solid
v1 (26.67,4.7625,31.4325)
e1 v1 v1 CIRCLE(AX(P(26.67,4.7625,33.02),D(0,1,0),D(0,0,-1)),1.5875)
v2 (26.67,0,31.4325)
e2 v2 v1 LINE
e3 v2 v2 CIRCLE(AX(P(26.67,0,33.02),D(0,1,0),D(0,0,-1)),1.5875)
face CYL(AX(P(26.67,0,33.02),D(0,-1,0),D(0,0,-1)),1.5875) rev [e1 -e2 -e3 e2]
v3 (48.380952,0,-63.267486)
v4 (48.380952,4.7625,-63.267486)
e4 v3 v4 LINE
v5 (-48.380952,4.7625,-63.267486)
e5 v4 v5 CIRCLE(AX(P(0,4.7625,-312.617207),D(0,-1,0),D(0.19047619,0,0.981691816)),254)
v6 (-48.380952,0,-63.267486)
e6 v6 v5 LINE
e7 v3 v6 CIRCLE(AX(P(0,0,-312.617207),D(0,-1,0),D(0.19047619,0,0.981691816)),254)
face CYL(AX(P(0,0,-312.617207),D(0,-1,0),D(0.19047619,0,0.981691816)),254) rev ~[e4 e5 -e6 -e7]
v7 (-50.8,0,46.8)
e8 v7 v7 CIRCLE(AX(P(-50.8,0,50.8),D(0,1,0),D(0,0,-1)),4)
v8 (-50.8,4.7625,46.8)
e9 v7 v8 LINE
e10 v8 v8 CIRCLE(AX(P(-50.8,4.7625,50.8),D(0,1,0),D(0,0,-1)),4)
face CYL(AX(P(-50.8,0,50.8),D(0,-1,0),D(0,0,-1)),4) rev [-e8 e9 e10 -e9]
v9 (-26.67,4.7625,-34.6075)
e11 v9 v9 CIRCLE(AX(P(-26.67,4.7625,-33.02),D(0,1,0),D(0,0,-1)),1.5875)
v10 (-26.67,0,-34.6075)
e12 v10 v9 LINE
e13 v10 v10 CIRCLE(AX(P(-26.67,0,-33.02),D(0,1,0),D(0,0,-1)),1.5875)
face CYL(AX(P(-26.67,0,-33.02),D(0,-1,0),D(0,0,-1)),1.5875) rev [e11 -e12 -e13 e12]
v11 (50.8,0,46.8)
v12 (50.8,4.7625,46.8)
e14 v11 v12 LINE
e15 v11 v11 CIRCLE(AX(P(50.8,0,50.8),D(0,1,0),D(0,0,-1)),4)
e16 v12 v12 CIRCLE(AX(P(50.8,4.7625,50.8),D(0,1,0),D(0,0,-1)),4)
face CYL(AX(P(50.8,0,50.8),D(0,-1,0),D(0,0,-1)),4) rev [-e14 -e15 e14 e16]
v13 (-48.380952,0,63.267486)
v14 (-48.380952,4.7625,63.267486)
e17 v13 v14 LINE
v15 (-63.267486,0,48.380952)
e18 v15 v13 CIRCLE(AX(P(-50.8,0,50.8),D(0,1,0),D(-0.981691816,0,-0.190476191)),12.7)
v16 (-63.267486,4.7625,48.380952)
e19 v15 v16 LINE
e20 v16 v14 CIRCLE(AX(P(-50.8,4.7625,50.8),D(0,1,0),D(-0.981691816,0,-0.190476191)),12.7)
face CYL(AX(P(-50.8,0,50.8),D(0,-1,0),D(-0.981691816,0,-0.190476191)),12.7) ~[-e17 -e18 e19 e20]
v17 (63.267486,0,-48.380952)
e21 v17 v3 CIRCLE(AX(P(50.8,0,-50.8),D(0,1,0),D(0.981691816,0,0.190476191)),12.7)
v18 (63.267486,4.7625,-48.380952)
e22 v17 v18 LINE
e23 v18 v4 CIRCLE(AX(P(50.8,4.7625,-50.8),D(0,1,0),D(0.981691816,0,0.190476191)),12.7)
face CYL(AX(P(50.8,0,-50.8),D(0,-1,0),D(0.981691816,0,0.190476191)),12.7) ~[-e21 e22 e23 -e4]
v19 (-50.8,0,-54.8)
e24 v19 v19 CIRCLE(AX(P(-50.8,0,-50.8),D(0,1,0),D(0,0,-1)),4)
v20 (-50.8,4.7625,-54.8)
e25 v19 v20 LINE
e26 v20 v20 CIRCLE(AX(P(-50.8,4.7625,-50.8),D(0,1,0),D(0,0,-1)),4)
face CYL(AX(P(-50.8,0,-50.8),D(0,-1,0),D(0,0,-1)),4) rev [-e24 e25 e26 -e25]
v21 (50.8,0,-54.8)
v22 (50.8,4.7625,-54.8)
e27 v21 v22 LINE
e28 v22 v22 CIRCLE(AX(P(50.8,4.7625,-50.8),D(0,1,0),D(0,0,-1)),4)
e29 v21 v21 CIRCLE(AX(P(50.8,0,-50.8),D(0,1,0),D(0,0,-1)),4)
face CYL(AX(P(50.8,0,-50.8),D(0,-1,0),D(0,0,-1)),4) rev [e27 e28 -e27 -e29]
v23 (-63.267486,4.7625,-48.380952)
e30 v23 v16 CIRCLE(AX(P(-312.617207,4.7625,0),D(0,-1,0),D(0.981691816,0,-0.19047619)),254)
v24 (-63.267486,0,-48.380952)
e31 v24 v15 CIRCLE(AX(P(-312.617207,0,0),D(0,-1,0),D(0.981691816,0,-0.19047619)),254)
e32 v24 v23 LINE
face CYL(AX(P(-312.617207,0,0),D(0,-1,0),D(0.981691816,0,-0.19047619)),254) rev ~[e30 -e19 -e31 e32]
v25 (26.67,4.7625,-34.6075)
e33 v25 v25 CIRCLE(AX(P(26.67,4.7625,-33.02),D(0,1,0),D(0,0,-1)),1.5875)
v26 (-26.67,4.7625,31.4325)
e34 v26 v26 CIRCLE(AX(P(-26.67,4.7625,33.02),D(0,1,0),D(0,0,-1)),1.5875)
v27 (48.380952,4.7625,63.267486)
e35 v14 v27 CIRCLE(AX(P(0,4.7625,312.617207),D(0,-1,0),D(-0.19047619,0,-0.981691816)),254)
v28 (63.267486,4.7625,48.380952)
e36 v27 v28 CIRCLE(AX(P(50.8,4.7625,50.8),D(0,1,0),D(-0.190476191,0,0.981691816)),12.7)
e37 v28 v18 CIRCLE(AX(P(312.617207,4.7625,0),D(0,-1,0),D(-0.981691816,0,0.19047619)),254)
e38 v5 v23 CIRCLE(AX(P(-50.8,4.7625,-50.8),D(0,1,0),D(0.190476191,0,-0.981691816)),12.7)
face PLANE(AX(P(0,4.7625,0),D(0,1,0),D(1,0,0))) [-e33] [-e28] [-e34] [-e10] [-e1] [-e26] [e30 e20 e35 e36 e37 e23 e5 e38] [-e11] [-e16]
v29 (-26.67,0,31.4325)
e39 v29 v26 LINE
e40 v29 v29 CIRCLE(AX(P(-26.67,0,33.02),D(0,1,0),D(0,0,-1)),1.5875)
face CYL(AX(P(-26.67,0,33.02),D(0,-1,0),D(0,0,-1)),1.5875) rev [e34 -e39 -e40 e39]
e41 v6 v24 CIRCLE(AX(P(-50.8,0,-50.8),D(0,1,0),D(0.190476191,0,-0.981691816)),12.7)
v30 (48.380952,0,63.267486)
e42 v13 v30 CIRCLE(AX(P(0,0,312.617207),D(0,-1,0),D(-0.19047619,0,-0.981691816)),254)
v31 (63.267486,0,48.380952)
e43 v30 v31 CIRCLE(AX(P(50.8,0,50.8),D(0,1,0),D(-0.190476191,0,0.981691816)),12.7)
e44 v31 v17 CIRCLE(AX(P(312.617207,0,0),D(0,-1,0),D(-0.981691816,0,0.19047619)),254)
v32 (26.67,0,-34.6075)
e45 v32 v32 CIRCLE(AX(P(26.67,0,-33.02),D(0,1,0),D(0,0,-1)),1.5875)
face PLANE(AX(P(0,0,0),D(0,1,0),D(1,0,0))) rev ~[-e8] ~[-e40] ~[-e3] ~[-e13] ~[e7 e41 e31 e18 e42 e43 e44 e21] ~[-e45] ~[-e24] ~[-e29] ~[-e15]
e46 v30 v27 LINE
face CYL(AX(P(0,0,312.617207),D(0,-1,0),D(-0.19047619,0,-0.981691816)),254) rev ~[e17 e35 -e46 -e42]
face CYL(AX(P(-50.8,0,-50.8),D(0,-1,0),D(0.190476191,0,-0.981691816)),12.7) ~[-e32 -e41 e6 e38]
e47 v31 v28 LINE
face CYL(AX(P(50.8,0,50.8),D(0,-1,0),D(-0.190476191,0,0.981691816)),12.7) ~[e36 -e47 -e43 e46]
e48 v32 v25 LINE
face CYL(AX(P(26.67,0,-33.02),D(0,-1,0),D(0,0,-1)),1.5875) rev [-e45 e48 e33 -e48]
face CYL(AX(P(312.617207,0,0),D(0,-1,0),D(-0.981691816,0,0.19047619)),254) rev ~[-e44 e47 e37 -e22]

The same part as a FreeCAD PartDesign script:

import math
import FreeCAD as App
import Part
import Sketcher
Q = App.Units.Quantity

doc = App.newDocument("Part")
body = doc.addObject("PartDesign::Body", "Body")

sketch1 = body.newObject("Sketcher::SketchObject", "Sketch")
sketch1.AttachmentSupport = (doc.getObject("XZ_Plane"), [""])
sketch1.MapMode = "FlatFace"
sketch1.addGeometry(Part.ArcOfCircle(Part.Circle(App.Vector(-50.8, -50.8, 0), App.Vector(0, 0, 1), 12.7), math.radians(169), math.radians(281)), False)
sketch1.addGeometry(Part.ArcOfCircle(Part.Circle(App.Vector(-312.6, 0, 0), App.Vector(0, 0, 1), 254), math.radians(-11), math.radians(11)), False)
sketch1.addGeometry(Part.ArcOfCircle(Part.Circle(App.Vector(-50.8, 50.8, 0), App.Vector(0, 0, 1), 12.7), math.radians(79), math.radians(191)), False)
sketch1.addGeometry(Part.ArcOfCircle(Part.Circle(App.Vector(0, 312.6, 0), App.Vector(0, 0, 1), 254), math.radians(-101), math.radians(-79)), False)
sketch1.addGeometry(Part.ArcOfCircle(Part.Circle(App.Vector(50.8, 50.8, 0), App.Vector(0, 0, 1), 12.7), math.radians(-11), math.radians(101)), False)
sketch1.addGeometry(Part.ArcOfCircle(Part.Circle(App.Vector(312.6, 0, 0), App.Vector(0, 0, 1), 254), math.radians(169), math.radians(191)), False)
sketch1.addGeometry(Part.ArcOfCircle(Part.Circle(App.Vector(50.8, -50.8, 0), App.Vector(0, 0, 1), 12.7), math.radians(-101), math.radians(11)), False)
sketch1.addGeometry(Part.ArcOfCircle(Part.Circle(App.Vector(0, -312.6, 0), App.Vector(0, 0, 1), 254), math.radians(79), math.radians(101)), False)
sketch1.addGeometry(Part.Circle(App.Vector(-50.8, 50.8, 0), App.Vector(0, 0, 1), 4), False)
sketch1.addGeometry(Part.Circle(App.Vector(-26.7, 33, 0), App.Vector(0, 0, 1), 1.6), False)
sketch1.addGeometry(Part.Circle(App.Vector(26.7, 33, 0), App.Vector(0, 0, 1), 1.6), False)
sketch1.addGeometry(Part.Circle(App.Vector(50.8, 50.8, 0), App.Vector(0, 0, 1), 4), False)
sketch1.addGeometry(Part.Circle(App.Vector(-50.8, -50.8, 0), App.Vector(0, 0, 1), 4), False)
sketch1.addGeometry(Part.Circle(App.Vector(-26.7, -33, 0), App.Vector(0, 0, 1), 1.6), False)
sketch1.addGeometry(Part.Circle(App.Vector(26.7, -33, 0), App.Vector(0, 0, 1), 1.6), False)
sketch1.addGeometry(Part.Circle(App.Vector(50.8, -50.8, 0), App.Vector(0, 0, 1), 4), False)
sketch1.addConstraint(Sketcher.Constraint("Tangent", 0, 1, 1, 1))
sketch1.addConstraint(Sketcher.Constraint("Tangent", 1, 2, 2, 2))
sketch1.addConstraint(Sketcher.Constraint("Tangent", 2, 1, 3, 1))
sketch1.addConstraint(Sketcher.Constraint("Tangent", 3, 2, 4, 2))
sketch1.addConstraint(Sketcher.Constraint("Tangent", 4, 1, 5, 1))
sketch1.addConstraint(Sketcher.Constraint("Tangent", 5, 2, 6, 2))
sketch1.addConstraint(Sketcher.Constraint("Tangent", 6, 1, 7, 1))
sketch1.addConstraint(Sketcher.Constraint("Tangent", 7, 2, 0, 2))
sketch1.addConstraint(Sketcher.Constraint("Coincident", 8, 3, 2, 3))
sketch1.addConstraint(Sketcher.Constraint("Coincident", 11, 3, 4, 3))
sketch1.addConstraint(Sketcher.Constraint("Coincident", 12, 3, 0, 3))
sketch1.addConstraint(Sketcher.Constraint("Coincident", 15, 3, 6, 3))
sketch1.addConstraint(Sketcher.Constraint("Equal", 0, 2))
sketch1.addConstraint(Sketcher.Constraint("Equal", 1, 3))
sketch1.addConstraint(Sketcher.Constraint("Equal", 2, 4))
sketch1.addConstraint(Sketcher.Constraint("Equal", 3, 5))
sketch1.addConstraint(Sketcher.Constraint("Equal", 4, 6))
sketch1.addConstraint(Sketcher.Constraint("Equal", 5, 7))
sketch1.addConstraint(Sketcher.Constraint("Equal", 9, 10))
sketch1.addConstraint(Sketcher.Constraint("Equal", 8, 11))
sketch1.addConstraint(Sketcher.Constraint("Equal", 11, 12))
sketch1.addConstraint(Sketcher.Constraint("Equal", 10, 13))
sketch1.addConstraint(Sketcher.Constraint("Equal", 13, 14))
sketch1.addConstraint(Sketcher.Constraint("Equal", 12, 15))
sketch1.addConstraint(Sketcher.Constraint("Symmetric", 0, 3, 4, 3, -1, 1))
sketch1.addConstraint(Sketcher.Constraint("Symmetric", 2, 3, 6, 3, -1, 1))
sketch1.addConstraint(Sketcher.Constraint("Symmetric", 10, 3, 13, 3, -1, 1))
sketch1.addConstraint(Sketcher.Constraint("Symmetric", 9, 3, 14, 3, -1, 1))
sketch1.addConstraint(Sketcher.Constraint("Symmetric", 2, 3, 4, 3, -2))
sketch1.addConstraint(Sketcher.Constraint("Symmetric", 9, 3, 10, 3, -2))
sketch1.addConstraint(Sketcher.Constraint("Radius", 1, Q("10 in")))
sketch1.addConstraint(Sketcher.Constraint("Radius", 0, Q("0.5 in")))
sketch1.addConstraint(Sketcher.Constraint("Diameter", 9, Q("0.125 in")))
sketch1.addConstraint(Sketcher.Constraint("DistanceX", 0, 3, -1, 1, Q("2 in")))
sketch1.addConstraint(Sketcher.Constraint("DistanceY", 0, 3, -1, 1, Q("2 in")))
sketch1.addConstraint(Sketcher.Constraint("DistanceY", -1, 1, 9, 3, Q("1.3 in")))
sketch1.addConstraint(Sketcher.Constraint("DistanceX", 9, 3, 10, 3, Q("2.1 in")))
sketch1.addConstraint(Sketcher.Constraint("Diameter", 8, 8.0))
pad1 = body.newObject("PartDesign::Pad", "Pad")
pad1.Profile = sketch1
pad1.Length = Q("0.1875 in")
pad1.Reversed = True

doc.recompute()
